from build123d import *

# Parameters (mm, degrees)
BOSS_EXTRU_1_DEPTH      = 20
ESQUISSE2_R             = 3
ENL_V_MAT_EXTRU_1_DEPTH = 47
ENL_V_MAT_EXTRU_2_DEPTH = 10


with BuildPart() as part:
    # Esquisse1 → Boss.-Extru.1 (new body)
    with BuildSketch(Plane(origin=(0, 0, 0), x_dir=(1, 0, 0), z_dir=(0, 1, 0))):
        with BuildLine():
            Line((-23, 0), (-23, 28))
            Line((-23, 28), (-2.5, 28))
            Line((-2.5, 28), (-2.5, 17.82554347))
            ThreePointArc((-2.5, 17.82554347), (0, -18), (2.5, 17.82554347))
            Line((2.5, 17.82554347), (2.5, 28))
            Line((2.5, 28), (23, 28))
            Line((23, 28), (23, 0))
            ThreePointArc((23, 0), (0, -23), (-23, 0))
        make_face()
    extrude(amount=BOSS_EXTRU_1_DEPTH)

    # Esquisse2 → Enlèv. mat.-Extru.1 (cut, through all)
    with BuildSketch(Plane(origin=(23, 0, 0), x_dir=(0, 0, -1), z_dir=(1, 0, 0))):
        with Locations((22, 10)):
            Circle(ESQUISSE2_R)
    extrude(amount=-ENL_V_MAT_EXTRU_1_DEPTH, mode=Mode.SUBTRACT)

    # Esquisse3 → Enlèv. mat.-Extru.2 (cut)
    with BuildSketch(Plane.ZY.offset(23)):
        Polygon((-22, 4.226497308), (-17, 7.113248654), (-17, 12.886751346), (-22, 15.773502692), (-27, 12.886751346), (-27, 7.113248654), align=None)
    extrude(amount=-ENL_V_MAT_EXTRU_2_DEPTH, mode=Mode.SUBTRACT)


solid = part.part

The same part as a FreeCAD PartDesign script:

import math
import FreeCAD as App
import Part
import Sketcher
Q = App.Units.Quantity

doc = App.newDocument("Part")
params = doc.addObject("Spreadsheet::Sheet", "Params")
for row, (alias, value) in enumerate([
    ("sketch1_radius", "23 mm"),
    ("sketch1_radius2", "18 mm"),
    ("sketch1_height", "28 mm"),
    ("sketch1_width", "20.5 mm"),
    ("pad1_length", "20 mm"),
    ("sketch2_diameter", "6 mm"),
    ("pocket2_length", "10 mm"),
], start=1):
    params.set(f"A{row}", alias)
    params.set(f"B{row}", "=" + value)
    params.setAlias(f"B{row}", alias)

body = doc.addObject("PartDesign::Body", "Body")

sketch1 = doc.addObject("Sketcher::SketchObject", "Sketch")
body.addObject(sketch1)
sketch1.AttachmentSupport = (doc.XZ_Plane, [""])
sketch1.MapMode = "FlatFace"
sketch1.addGeometry([
    Part.LineSegment(App.Vector(-23, -28, 0), App.Vector(-23, 0, 0)),
    Part.ArcOfCircle(Part.Circle(App.Vector(0, 0, 0), App.Vector(0, 0, 1), 23), math.radians(0), math.radians(180)),
    Part.LineSegment(App.Vector(23, 0, 0), App.Vector(23, -28, 0)),
    Part.LineSegment(App.Vector(23, -28, 0), App.Vector(2, -28, 0)),
    Part.LineSegment(App.Vector(2, -28, 0), App.Vector(2, -18, 0)),
    Part.ArcOfCircle(Part.Circle(App.Vector(0, 0, 0), App.Vector(0, 0, 1), 18), math.radians(-82), math.radians(262)),
    Part.LineSegment(App.Vector(-2, -18, 0), App.Vector(-2, -28, 0)),
    Part.LineSegment(App.Vector(-2, -28, 0), App.Vector(-23, -28, 0)),
], False)
sketch1.addConstraint([
    Sketcher.Constraint("Tangent", 0, 2, 1, 2),
    Sketcher.Constraint("Tangent", 1, 1, 2, 1),
    Sketcher.Constraint("Coincident", 2, 2, 3, 1),
    Sketcher.Constraint("Coincident", 3, 2, 4, 1),
    Sketcher.Constraint("Coincident", 4, 2, 5, 1),
    Sketcher.Constraint("Coincident", 5, 2, 6, 1),
    Sketcher.Constraint("Coincident", 6, 2, 7, 1),
    Sketcher.Constraint("Coincident", 7, 2, 0, 1),
    Sketcher.Constraint("Vertical", 0),
    Sketcher.Constraint("Vertical", 2),
    Sketcher.Constraint("Horizontal", 3),
    Sketcher.Constraint("Vertical", 4),
    Sketcher.Constraint("Vertical", 6),
    Sketcher.Constraint("Horizontal", 7),
    Sketcher.Constraint("Coincident", 1, 3, -1, 1),
    Sketcher.Constraint("Coincident", 5, 3, -1, 1),
    Sketcher.Constraint("Symmetric", 3, 2, 6, 2, -2),
    Sketcher.Constraint("Radius", 1, Q("23 mm")),
    Sketcher.Constraint("Radius", 5, Q("18 mm")),
    Sketcher.Constraint("DistanceY", 0, 1, 0, 2, Q("28 mm")),
    Sketcher.Constraint("DistanceX", 3, 2, 3, 1, Q("20.5 mm")),
])
sketch1.setExpression("Constraints[17]", "Params.sketch1_radius")
sketch1.setExpression("Constraints[18]", "Params.sketch1_radius2")
sketch1.setExpression("Constraints[19]", "Params.sketch1_height")
sketch1.setExpression("Constraints[20]", "Params.sketch1_width")
pad1 = doc.addObject("PartDesign::Pad", "Pad")
body.addObject(pad1)
pad1.Profile = sketch1
pad1.setExpression("Length", "Params.pad1_length")
pad1.Reversed = True

sketch2 = doc.addObject("Sketcher::SketchObject", "Sketch001")
body.addObject(sketch2)
sketch2.AttachmentSupport = (doc.YZ_Plane, [""])
sketch2.MapMode = "FlatFace"
sketch2.AttachmentOffset = App.Placement(App.Vector(0, 0, 23), App.Rotation())
sketch2.addGeometry(Part.Circle(App.Vector(10, -22, 0), App.Vector(0, 0, 1), 3), False)
sketch2.addConstraint([
    Sketcher.Constraint("Diameter", 0, Q("6 mm")),
    Sketcher.Constraint("DistanceX", -1, 1, 0, 3, Q("10 mm")),
    Sketcher.Constraint("DistanceY", 0, 3, -1, 1, Q("22 mm")),
])
sketch2.setExpression("Constraints[0]", "Params.sketch2_diameter")
pocket1 = doc.addObject("PartDesign::Pocket", "Pocket")
body.addObject(pocket1)
pocket1.Profile = sketch2
pocket1.Type = "ThroughAll"

sketch3 = doc.addObject("Sketcher::SketchObject", "Sketch002")
body.addObject(sketch3)
sketch3.AttachmentSupport = (doc.YZ_Plane, [""])
sketch3.MapMode = "FlatFace"
sketch3.AttachmentOffset = App.Placement(App.Vector(0, 0, -23), App.Rotation())
sketch3.addGeometry([
    Part.LineSegment(App.Vector(4, -22, 0), App.Vector(7, -17, 0)),
    Part.LineSegment(App.Vector(7, -17, 0), App.Vector(13, -17, 0)),
    Part.LineSegment(App.Vector(13, -17, 0), App.Vector(16, -22, 0)),
    Part.LineSegment(App.Vector(16, -22, 0), App.Vector(13, -27, 0)),
    Part.LineSegment(App.Vector(13, -27, 0), App.Vector(7, -27, 0)),
    Part.LineSegment(App.Vector(7, -27, 0), App.Vector(4, -22, 0)),
], False)
sketch3.addConstraint([
    Sketcher.Constraint("Coincident", 0, 2, 1, 1),
    Sketcher.Constraint("Coincident", 1, 2, 2, 1),
    Sketcher.Constraint("Coincident", 2, 2, 3, 1),
    Sketcher.Constraint("Coincident", 3, 2, 4, 1),
    Sketcher.Constraint("Coincident", 4, 2, 5, 1),
    Sketcher.Constraint("Coincident", 5, 2, 0, 1),
    Sketcher.Constraint("Horizontal", 1),
    Sketcher.Constraint("Horizontal", 4),
    Sketcher.Constraint("Parallel", 0, 3),
    Sketcher.Constraint("Parallel", 2, 5),
    Sketcher.Constraint("Horizontal", 2, 2, 5, 2),
    Sketcher.Constraint("Vertical", 1, 2, 3, 2),
    Sketcher.Constraint("Vertical", 0, 2, 4, 2),
    Sketcher.Constraint("Angle", 0, Q("60 deg")),
    Sketcher.Constraint("DistanceY", 0, 2, -1, 1, Q("17 mm")),
    Sketcher.Constraint("DistanceY", 2, 2, -1, 1, Q("22 mm")),
    Sketcher.Constraint("DistanceX", 1, 1, 1, 2, Q("5.773503 mm")),
    Sketcher.Constraint("DistanceX", -1, 1, 0, 2, Q("7.113249 mm")),
])
pocket2 = doc.addObject("PartDesign::Pocket", "Pocket001")
body.addObject(pocket2)
pocket2.Profile = sketch3
pocket2.setExpression("Length", "Params.pocket2_length")
pocket2.Reversed = True

doc.recompute()
